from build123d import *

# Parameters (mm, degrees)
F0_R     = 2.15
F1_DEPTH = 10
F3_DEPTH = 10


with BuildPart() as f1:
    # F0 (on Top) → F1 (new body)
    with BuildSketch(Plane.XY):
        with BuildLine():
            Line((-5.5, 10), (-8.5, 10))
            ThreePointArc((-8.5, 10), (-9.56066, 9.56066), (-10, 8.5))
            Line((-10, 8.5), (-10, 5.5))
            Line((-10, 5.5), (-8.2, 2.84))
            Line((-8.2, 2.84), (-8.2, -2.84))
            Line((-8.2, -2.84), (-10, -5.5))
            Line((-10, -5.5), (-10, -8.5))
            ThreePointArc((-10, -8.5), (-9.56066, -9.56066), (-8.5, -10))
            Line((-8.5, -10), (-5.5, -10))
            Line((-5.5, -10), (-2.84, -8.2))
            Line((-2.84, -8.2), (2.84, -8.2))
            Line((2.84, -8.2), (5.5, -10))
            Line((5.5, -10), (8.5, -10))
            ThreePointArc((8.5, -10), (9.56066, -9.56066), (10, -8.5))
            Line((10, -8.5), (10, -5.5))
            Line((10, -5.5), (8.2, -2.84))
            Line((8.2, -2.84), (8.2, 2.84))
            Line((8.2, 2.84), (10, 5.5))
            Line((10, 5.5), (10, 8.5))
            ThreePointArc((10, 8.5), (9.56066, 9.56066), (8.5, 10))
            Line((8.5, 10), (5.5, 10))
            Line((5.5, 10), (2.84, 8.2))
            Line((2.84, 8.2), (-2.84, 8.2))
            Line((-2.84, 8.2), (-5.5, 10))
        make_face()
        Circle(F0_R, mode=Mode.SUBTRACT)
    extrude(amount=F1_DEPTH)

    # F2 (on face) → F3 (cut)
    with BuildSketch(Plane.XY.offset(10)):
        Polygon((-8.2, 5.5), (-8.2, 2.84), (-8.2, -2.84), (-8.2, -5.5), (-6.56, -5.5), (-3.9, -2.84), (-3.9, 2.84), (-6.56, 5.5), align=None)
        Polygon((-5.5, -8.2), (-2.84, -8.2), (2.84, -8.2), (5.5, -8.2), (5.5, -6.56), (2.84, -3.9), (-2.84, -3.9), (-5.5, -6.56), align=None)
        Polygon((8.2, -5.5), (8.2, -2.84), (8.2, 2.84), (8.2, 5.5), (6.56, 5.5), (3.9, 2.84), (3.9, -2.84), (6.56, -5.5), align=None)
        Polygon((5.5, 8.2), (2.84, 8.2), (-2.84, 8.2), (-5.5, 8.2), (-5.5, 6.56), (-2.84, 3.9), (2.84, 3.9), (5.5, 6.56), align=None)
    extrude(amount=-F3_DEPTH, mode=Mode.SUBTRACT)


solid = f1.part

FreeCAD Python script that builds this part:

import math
import FreeCAD as App
import Part
import Sketcher

V = App.Vector

doc = App.newDocument("Part")
params = doc.addObject("Spreadsheet::Sheet", "Params")
for row, (alias, value) in enumerate([
    ("sketch1_diameter", "4.3 mm"),
    ("sketch1_radius", "1.500001 mm"),
    ("sketch1_width", "3 mm"),
    ("sketch1_width2", "5.68 mm"),
    ("pad1_length", "10 mm"),
    ("sketch2_width", "11 mm"),
    ("sketch2_width2", "1.64 mm"),
    ("sketch2_width3", "5.68 mm"),
    ("pocket1_length", "10 mm"),
], start=1):
    params.set(f"A{row}", alias)
    params.set(f"B{row}", "=" + value)
    params.setAlias(f"B{row}", alias)

body = doc.addObject("PartDesign::Body", "Body")

# Sketch on XY plane
sketch1 = body.newObject("Sketcher::SketchObject", "Sketch")
sketch1.AttachmentSupport = (doc.getObject("XY_Plane"), [""])
sketch1.MapMode = "FlatFace"
sketch1.addGeometry([
    Part.LineSegment(V(-5.5, 10, 0), V(-8.5, 10, 0)),  # 0
    Part.ArcOfCircle(Part.Circle(V(-8.5, 8.5, 0), V(0, 0, 1), 1.5), math.radians(90), math.radians(180)),  # 1
    Part.LineSegment(V(-10, 8.5, 0), V(-10, 5.5, 0)),  # 2
    Part.LineSegment(V(-10, 5.5, 0), V(-8.2, 2.8, 0)),  # 3
    Part.LineSegment(V(-8.2, 2.8, 0), V(-8.2, -2.8, 0)),  # 4
    Part.LineSegment(V(-8.2, -2.8, 0), V(-10, -5.5, 0)),  # 5
    Part.LineSegment(V(-10, -5.5, 0), V(-10, -8.5, 0)),  # 6
    Part.ArcOfCircle(Part.Circle(V(-8.5, -8.5, 0), V(0, 0, 1), 1.5), math.radians(-180), math.radians(-90)),  # 7
    Part.LineSegment(V(-8.5, -10, 0), V(-5.5, -10, 0)),  # 8
    Part.LineSegment(V(-5.5, -10, 0), V(-2.8, -8.2, 0)),  # 9
    Part.LineSegment(V(-2.8, -8.2, 0), V(2.8, -8.2, 0)),  # 10
    Part.LineSegment(V(2.8, -8.2, 0), V(5.5, -10, 0)),  # 11
    Part.LineSegment(V(5.5, -10, 0), V(8.5, -10, 0)),  # 12
    Part.ArcOfCircle(Part.Circle(V(8.5, -8.5, 0), V(0, 0, 1), 1.5), math.radians(-90), math.radians(0)),  # 13
    Part.LineSegment(V(10, -8.5, 0), V(10, -5.5, 0)),  # 14
    Part.LineSegment(V(10, -5.5, 0), V(8.2, -2.8, 0)),  # 15
    Part.LineSegment(V(8.2, -2.8, 0), V(8.2, 2.8, 0)),  # 16
    Part.LineSegment(V(8.2, 2.8, 0), V(10, 5.5, 0)),  # 17
    Part.LineSegment(V(10, 5.5, 0), V(10, 8.5, 0)),  # 18
    Part.ArcOfCircle(Part.Circle(V(8.5, 8.5, 0), V(0, 0, 1), 1.5), math.radians(0), math.radians(90)),  # 19
    Part.LineSegment(V(8.5, 10, 0), V(5.5, 10, 0)),  # 20
    Part.LineSegment(V(5.5, 10, 0), V(2.8, 8.2, 0)),  # 21
    Part.LineSegment(V(2.8, 8.2, 0), V(-2.8, 8.2, 0)),  # 22
    Part.LineSegment(V(-2.8, 8.2, 0), V(-5.5, 10, 0)),  # 23
    Part.Circle(V(0, 0, 0), V(0, 0, 1), 2.1),  # 24
], False)
sketch1.addConstraint([
    Sketcher.Constraint("Tangent", 0, 2, 1, 1),
    Sketcher.Constraint("Tangent", 1, 2, 2, 1),
    Sketcher.Constraint("Coincident", 2, 2, 3, 1),
    Sketcher.Constraint("Coincident", 3, 2, 4, 1),
    Sketcher.Constraint("Coincident", 4, 2, 5, 1),
    Sketcher.Constraint("Coincident", 5, 2, 6, 1),
    Sketcher.Constraint("Tangent", 6, 2, 7, 1),
    Sketcher.Constraint("Tangent", 7, 2, 8, 1),
    Sketcher.Constraint("Coincident", 8, 2, 9, 1),
    Sketcher.Constraint("Coincident", 9, 2, 10, 1),
    Sketcher.Constraint("Coincident", 10, 2, 11, 1),
    Sketcher.Constraint("Coincident", 11, 2, 12, 1),
    Sketcher.Constraint("Tangent", 12, 2, 13, 1),
    Sketcher.Constraint("Tangent", 13, 2, 14, 1),
    Sketcher.Constraint("Coincident", 14, 2, 15, 1),
    Sketcher.Constraint("Coincident", 15, 2, 16, 1),
    Sketcher.Constraint("Coincident", 16, 2, 17, 1),
    Sketcher.Constraint("Coincident", 17, 2, 18, 1),
    Sketcher.Constraint("Tangent", 18, 2, 19, 1),
    Sketcher.Constraint("Tangent", 19, 2, 20, 1),
    Sketcher.Constraint("Coincident", 20, 2, 21, 1),
    Sketcher.Constraint("Coincident", 21, 2, 22, 1),
    Sketcher.Constraint("Coincident", 22, 2, 23, 1),
    Sketcher.Constraint("Coincident", 23, 2, 0, 1),
    Sketcher.Constraint("Horizontal", 0),
    Sketcher.Constraint("Vertical", 2),
    Sketcher.Constraint("Vertical", 4),
    Sketcher.Constraint("Vertical", 6),
    Sketcher.Constraint("Horizontal", 8),
    Sketcher.Constraint("Horizontal", 10),
    Sketcher.Constraint("Horizontal", 12),
    Sketcher.Constraint("Vertical", 14),
    Sketcher.Constraint("Vertical", 16),
    Sketcher.Constraint("Vertical", 18),
    Sketcher.Constraint("Horizontal", 20),
    Sketcher.Constraint("Horizontal", 22),
    Sketcher.Constraint("Coincident", 24, 3, -1, 1),
    Sketcher.Constraint("Equal", 1, 7),
    Sketcher.Constraint("Equal", 7, 13),
    Sketcher.Constraint("Equal", 13, 19),
    Sketcher.Constraint("Symmetric", 1, 3, 13, 3, -1, 1),
    Sketcher.Constraint("Symmetric", 7, 3, 19, 3, -1, 1),
    Sketcher.Constraint("Symmetric", 3, 2, 15, 2, -1, 1),
    Sketcher.Constraint("Symmetric", 9, 2, 21, 2, -1, 1),
    Sketcher.Constraint("Symmetric", 7, 3, 13, 3, -2),
    Sketcher.Constraint("Perpendicular", 3, 9),
    Sketcher.Constraint("Perpendicular", 5, 11),
    Sketcher.Constraint("Perpendicular", 9, 15),
    Sketcher.Constraint("Perpendicular", 11, 17),
    Sketcher.Constraint("Perpendicular", 15, 21),
    Sketcher.Constraint("Perpendicular", 17, 23),
    Sketcher.Constraint("Horizontal", 5, 2, 14, 2),
    Sketcher.Constraint("Horizontal", 4, 2, 15, 2),
    Sketcher.Constraint("Horizontal", 3, 2, 16, 2),
    Sketcher.Constraint("Vertical", 11, 2, 20, 2),
    Sketcher.Constraint("Vertical", 9, 2, 22, 2),
    Sketcher.Constraint("Equal", 20, 2),
    Sketcher.Constraint("Equal", 22, 4),
    Sketcher.Constraint("Equal", 5, 9),
    Sketcher.Constraint("Diameter", 24, 4.3),
    Sketcher.Constraint("Radius", 1, 1.500001),
    Sketcher.Constraint("DistanceX", 0, 2, 0, 1, 3.0),
    Sketcher.Constraint("DistanceY", -1, 1, 0, 2, 10.0),
    Sketcher.Constraint("DistanceX", 10, 1, 10, 2, 5.68),
    Sketcher.Constraint("DistanceX", 3, 2, -1, 1, 8.2),
])
sketch1.setExpression("Constraints[59]", "Params.sketch1_diameter")
sketch1.setExpression("Constraints[60]", "Params.sketch1_radius")
sketch1.setExpression("Constraints[61]", "Params.sketch1_width")
sketch1.setExpression("Constraints[63]", "Params.sketch1_width2")
pad1 = body.newObject("PartDesign::Pad", "Pad")
pad1.Profile = sketch1
pad1.setExpression("Length", "Params.pad1_length")

# Sketch on XY plane
sketch2 = body.newObject("Sketcher::SketchObject", "Sketch001")
sketch2.AttachmentSupport = (doc.getObject("XY_Plane"), [""])
sketch2.MapMode = "FlatFace"
sketch2.AttachmentOffset = App.Placement(V(0, 0, 10), App.Rotation())
sketch2.addGeometry([
    Part.LineSegment(V(-8.2, 5.5, 0), V(-8.2, -5.5, 0)),  # 0
    Part.LineSegment(V(-8.2, -5.5, 0), V(-6.6, -5.5, 0)),  # 1
    Part.LineSegment(V(-6.6, -5.5, 0), V(-3.9, -2.8, 0)),  # 2
    Part.LineSegment(V(-3.9, -2.8, 0), V(-3.9, 2.8, 0)),  # 3
    Part.LineSegment(V(-3.9, 2.8, 0), V(-6.6, 5.5, 0)),  # 4
    Part.LineSegment(V(-6.6, 5.5, 0), V(-8.2, 5.5, 0)),  # 5
    Part.LineSegment(V(-5.5, -8.2, 0), V(5.5, -8.2, 0)),  # 6
    Part.LineSegment(V(5.5, -8.2, 0), V(5.5, -6.6, 0)),  # 7
    Part.LineSegment(V(5.5, -6.6, 0), V(2.8, -3.9, 0)),  # 8
    Part.LineSegment(V(2.8, -3.9, 0), V(-2.8, -3.9, 0)),  # 9
    Part.LineSegment(V(-2.8, -3.9, 0), V(-5.5, -6.6, 0)),  # 10
    Part.LineSegment(V(-5.5, -6.6, 0), V(-5.5, -8.2, 0)),  # 11
    Part.LineSegment(V(8.2, -5.5, 0), V(8.2, 5.5, 0)),  # 12
    Part.LineSegment(V(8.2, 5.5, 0), V(6.6, 5.5, 0)),  # 13
    Part.LineSegment(V(6.6, 5.5, 0), V(3.9, 2.8, 0)),  # 14
    Part.LineSegment(V(3.9, 2.8, 0), V(3.9, -2.8, 0)),  # 15
    Part.LineSegment(V(3.9, -2.8, 0), V(6.6, -5.5, 0)),  # 16
    Part.LineSegment(V(6.6, -5.5, 0), V(8.2, -5.5, 0)),  # 17
    Part.LineSegment(V(5.5, 8.2, 0), V(-5.5, 8.2, 0)),  # 18
    Part.LineSegment(V(-5.5, 8.2, 0), V(-5.5, 6.6, 0)),  # 19
    Part.LineSegment(V(-5.5, 6.6, 0), V(-2.8, 3.9, 0)),  # 20
    Part.LineSegment(V(-2.8, 3.9, 0), V(2.8, 3.9, 0)),  # 21
    Part.LineSegment(V(2.8, 3.9, 0), V(5.5, 6.6, 0)),  # 22
    Part.LineSegment(V(5.5, 6.6, 0), V(5.5, 8.2, 0)),  # 23
], False)
sketch2.addConstraint([
    Sketcher.Constraint("Coincident", 0, 2, 1, 1),
    Sketcher.Constraint("Coincident", 1, 2, 2, 1),
    Sketcher.Constraint("Coincident", 2, 2, 3, 1),
    Sketcher.Constraint("Coincident", 3, 2, 4, 1),
    Sketcher.Constraint("Coincident", 4, 2, 5, 1),
    Sketcher.Constraint("Coincident", 5, 2, 0, 1),
    Sketcher.Constraint("Coincident", 6, 2, 7, 1),
    Sketcher.Constraint("Coincident", 7, 2, 8, 1),
    Sketcher.Constraint("Coincident", 8, 2, 9, 1),
    Sketcher.Constraint("Coincident", 9, 2, 10, 1),
    Sketcher.Constraint("Coincident", 10, 2, 11, 1),
    Sketcher.Constraint("Coincident", 11, 2, 6, 1),
    Sketcher.Constraint("Coincident", 12, 2, 13, 1),
    Sketcher.Constraint("Coincident", 13, 2, 14, 1),
    Sketcher.Constraint("Coincident", 14, 2, 15, 1),
    Sketcher.Constraint("Coincident", 15, 2, 16, 1),
    Sketcher.Constraint("Coincident", 16, 2, 17, 1),
    Sketcher.Constraint("Coincident", 17, 2, 12, 1),
    Sketcher.Constraint("Coincident", 18, 2, 19, 1),
    Sketcher.Constraint("Coincident", 19, 2, 20, 1),
    Sketcher.Constraint("Coincident", 20, 2, 21, 1),
    Sketcher.Constraint("Coincident", 21, 2, 22, 1),
    Sketcher.Constraint("Coincident", 22, 2, 23, 1),
    Sketcher.Constraint("Coincident", 23, 2, 18, 1),
    Sketcher.Constraint("Vertical", 0),
    Sketcher.Constraint("Horizontal", 1),
    Sketcher.Constraint("Vertical", 3),
    Sketcher.Constraint("Horizontal", 5),
    Sketcher.Constraint("Horizontal", 6),
    Sketcher.Constraint("Vertical", 7),
    Sketcher.Constraint("Horizontal", 9),
    Sketcher.Constraint("Vertical", 11),
    Sketcher.Constraint("Vertical", 12),
    Sketcher.Constraint("Horizontal", 13),
    Sketcher.Constraint("Vertical", 15),
    Sketcher.Constraint("Horizontal", 17),
    Sketcher.Constraint("Horizontal", 18),
    Sketcher.Constraint("Vertical", 19),
    Sketcher.Constraint("Horizontal", 21),
    Sketcher.Constraint("Vertical", 23),
    Sketcher.Constraint("Symmetric", 0, 2, 12, 2, -1, 1),
    Sketcher.Constraint("Symmetric", 2, 2, 14, 2, -1, 1),
    Sketcher.Constraint("Symmetric", 4, 2, 16, 2, -1, 1),
    Sketcher.Constraint("Symmetric", 6, 2, 18, 2, -1, 1),
    Sketcher.Constraint("Symmetric", 8, 2, 20, 2, -1, 1),
    Sketcher.Constraint("Symmetric", 10, 2, 22, 2, -1, 1),
    Sketcher.Constraint("Symmetric", 7, 2, 10, 2, -2),
    Sketcher.Constraint("Symmetric", 4, 2, 13, 2, -2),
    Sketcher.Constraint("Perpendicular", 2, 4),
    Sketcher.Constraint("Parallel", 4, 8),
    Sketcher.Constraint("Perpendicular", 8, 10),
    Sketcher.Constraint("Parallel", 10, 14),
    Sketcher.Constraint("Perpendicular", 14, 16),
    Sketcher.Constraint("Parallel", 16, 20),
    Sketcher.Constraint("Perpendicular", 20, 22),
    Sketcher.Constraint("Horizontal", 3, 2, 14, 2),
    Sketcher.Constraint("Equal", 18, 0),
    Sketcher.Constraint("Equal", 21, 3),
    Sketcher.Constraint("Equal", 17, 7),
    Sketcher.Constraint("DistanceX", 6, 1, 6, 2, 11.0),
    Sketcher.Constraint("DistanceX", 1, 1, 1, 2, 1.64),
    Sketcher.Constraint("DistanceX", 9, 2, 9, 1, 5.68),
    Sketcher.Constraint("DistanceX", 0, 2, -1, 1, 8.2),
    Sketcher.Constraint("DistanceY", 6, 2, -1, 1, 8.2),
])
sketch2.setExpression("Constraints[59]", "Params.sketch2_width")
sketch2.setExpression("Constraints[60]", "Params.sketch2_width2")
sketch2.setExpression("Constraints[61]", "Params.sketch2_width3")
pocket1 = body.newObject("PartDesign::Pocket", "Pocket")
pocket1.Profile = sketch2
pocket1.setExpression("Length", "Params.pocket1_length")

doc.recompute()
